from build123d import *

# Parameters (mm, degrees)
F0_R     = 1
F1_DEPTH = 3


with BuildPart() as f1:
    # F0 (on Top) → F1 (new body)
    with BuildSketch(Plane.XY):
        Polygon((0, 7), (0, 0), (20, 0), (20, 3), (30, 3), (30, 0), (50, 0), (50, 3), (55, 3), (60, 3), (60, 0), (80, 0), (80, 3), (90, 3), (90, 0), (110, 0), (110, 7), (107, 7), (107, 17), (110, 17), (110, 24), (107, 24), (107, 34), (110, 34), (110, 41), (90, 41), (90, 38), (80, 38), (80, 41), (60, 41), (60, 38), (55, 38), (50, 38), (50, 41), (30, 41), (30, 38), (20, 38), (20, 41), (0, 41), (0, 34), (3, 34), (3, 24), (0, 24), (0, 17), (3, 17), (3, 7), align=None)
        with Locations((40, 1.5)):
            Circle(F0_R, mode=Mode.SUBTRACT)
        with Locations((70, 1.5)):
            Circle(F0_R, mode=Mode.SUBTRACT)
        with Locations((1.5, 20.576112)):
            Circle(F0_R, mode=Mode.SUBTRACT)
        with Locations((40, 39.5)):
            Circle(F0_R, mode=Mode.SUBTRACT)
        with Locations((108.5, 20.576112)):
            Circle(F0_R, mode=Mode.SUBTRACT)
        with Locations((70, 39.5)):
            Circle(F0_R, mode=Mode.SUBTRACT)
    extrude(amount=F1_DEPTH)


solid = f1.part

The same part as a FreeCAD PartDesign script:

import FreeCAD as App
import Part
import Sketcher

V = App.Vector
Q = App.Units.Quantity

doc = App.newDocument("Part")
body = doc.addObject("PartDesign::Body", "Body")

sketch1 = body.newObject("Sketcher::SketchObject", "Sketch")
sketch1.AttachmentSupport = (doc.getObject("XY_Plane"), [""])
sketch1.MapMode = "FlatFace"
sketch1.addGeometry(Part.LineSegment(V(0, 7, 0), V(0, 0, 0)), False)
sketch1.addGeometry(Part.LineSegment(V(0, 0, 0), V(20, 0, 0)), False)
sketch1.addGeometry(Part.LineSegment(V(20, 0, 0), V(20, 3, 0)), False)
sketch1.addGeometry(Part.LineSegment(V(20, 3, 0), V(30, 3, 0)), False)
sketch1.addGeometry(Part.LineSegment(V(30, 3, 0), V(30, 0, 0)), False)
sketch1.addGeometry(Part.LineSegment(V(30, 0, 0), V(50, 0, 0)), False)
sketch1.addGeometry(Part.LineSegment(V(50, 0, 0), V(50, 3, 0)), False)
sketch1.addGeometry(Part.LineSegment(V(50, 3, 0), V(60, 3, 0)), False)
sketch1.addGeometry(Part.LineSegment(V(60, 3, 0), V(60, 0, 0)), False)
sketch1.addGeometry(Part.LineSegment(V(60, 0, 0), V(80, 0, 0)), False)
sketch1.addGeometry(Part.LineSegment(V(80, 0, 0), V(80, 3, 0)), False)
sketch1.addGeometry(Part.LineSegment(V(80, 3, 0), V(90, 3, 0)), False)
sketch1.addGeometry(Part.LineSegment(V(90, 3, 0), V(90, 0, 0)), False)
sketch1.addGeometry(Part.LineSegment(V(90, 0, 0), V(110, 0, 0)), False)
sketch1.addGeometry(Part.LineSegment(V(110, 0, 0), V(110, 7, 0)), False)
sketch1.addGeometry(Part.LineSegment(V(110, 7, 0), V(107, 7, 0)), False)
sketch1.addGeometry(Part.LineSegment(V(107, 7, 0), V(107, 17, 0)), False)
sketch1.addGeometry(Part.LineSegment(V(107, 17, 0), V(110, 17, 0)), False)
sketch1.addGeometry(Part.LineSegment(V(110, 17, 0), V(110, 24, 0)), False)
sketch1.addGeometry(Part.LineSegment(V(110, 24, 0), V(107, 24, 0)), False)
sketch1.addGeometry(Part.LineSegment(V(107, 24, 0), V(107, 34, 0)), False)
sketch1.addGeometry(Part.LineSegment(V(107, 34, 0), V(110, 34, 0)), False)
sketch1.addGeometry(Part.LineSegment(V(110, 34, 0), V(110, 41, 0)), False)
sketch1.addGeometry(Part.LineSegment(V(110, 41, 0), V(90, 41, 0)), False)
sketch1.addGeometry(Part.LineSegment(V(90, 41, 0), V(90, 38, 0)), False)
sketch1.addGeometry(Part.LineSegment(V(90, 38, 0), V(80, 38, 0)), False)
sketch1.addGeometry(Part.LineSegment(V(80, 38, 0), V(80, 41, 0)), False)
sketch1.addGeometry(Part.LineSegment(V(80, 41, 0), V(60, 41, 0)), False)
sketch1.addGeometry(Part.LineSegment(V(60, 41, 0), V(60, 38, 0)), False)
sketch1.addGeometry(Part.LineSegment(V(60, 38, 0), V(50, 38, 0)), False)
sketch1.addGeometry(Part.LineSegment(V(50, 38, 0), V(50, 41, 0)), False)
sketch1.addGeometry(Part.LineSegment(V(50, 41, 0), V(30, 41, 0)), False)
sketch1.addGeometry(Part.LineSegment(V(30, 41, 0), V(30, 38, 0)), False)
sketch1.addGeometry(Part.LineSegment(V(30, 38, 0), V(20, 38, 0)), False)
sketch1.addGeometry(Part.LineSegment(V(20, 38, 0), V(20, 41, 0)), False)
sketch1.addGeometry(Part.LineSegment(V(20, 41, 0), V(0, 41, 0)), False)
sketch1.addGeometry(Part.LineSegment(V(0, 41, 0), V(0, 34, 0)), False)
sketch1.addGeometry(Part.LineSegment(V(0, 34, 0), V(3, 34, 0)), False)
sketch1.addGeometry(Part.LineSegment(V(3, 34, 0), V(3, 24, 0)), False)
sketch1.addGeometry(Part.LineSegment(V(3, 24, 0), V(0, 24, 0)), False)
sketch1.addGeometry(Part.LineSegment(V(0, 24, 0), V(0, 17, 0)), False)
sketch1.addGeometry(Part.LineSegment(V(0, 17, 0), V(3, 17, 0)), False)
sketch1.addGeometry(Part.LineSegment(V(3, 17, 0), V(3, 7, 0)), False)
sketch1.addGeometry(Part.LineSegment(V(3, 7, 0), V(0, 7, 0)), False)
sketch1.addGeometry(Part.Circle(V(40, 1.5, 0), V(0, 0, 1), 1), False)
sketch1.addGeometry(Part.Circle(V(70, 1.5, 0), V(0, 0, 1), 1), False)
sketch1.addGeometry(Part.Circle(V(1.5, 20.6, 0), V(0, 0, 1), 1), False)
sketch1.addGeometry(Part.Circle(V(40, 39.5, 0), V(0, 0, 1), 1), False)
sketch1.addGeometry(Part.Circle(V(108.5, 20.6, 0), V(0, 0, 1), 1), False)
sketch1.addGeometry(Part.Circle(V(70, 39.5, 0), V(0, 0, 1), 1), False)
sketch1.addConstraint(Sketcher.Constraint("Coincident", 0, 2, 1, 1))
sketch1.addConstraint(Sketcher.Constraint("Coincident", 1, 2, 2, 1))
sketch1.addConstraint(Sketcher.Constraint("Coincident", 2, 2, 3, 1))
sketch1.addConstraint(Sketcher.Constraint("Coincident", 3, 2, 4, 1))
sketch1.addConstraint(Sketcher.Constraint("Coincident", 4, 2, 5, 1))
sketch1.addConstraint(Sketcher.Constraint("Coincident", 5, 2, 6, 1))
sketch1.addConstraint(Sketcher.Constraint("Coincident", 6, 2, 7, 1))
sketch1.addConstraint(Sketcher.Constraint("Coincident", 7, 2, 8, 1))
sketch1.addConstraint(Sketcher.Constraint("Coincident", 8, 2, 9, 1))
sketch1.addConstraint(Sketcher.Constraint("Coincident", 9, 2, 10, 1))
sketch1.addConstraint(Sketcher.Constraint("Coincident", 10, 2, 11, 1))
sketch1.addConstraint(Sketcher.Constraint("Coincident", 11, 2, 12, 1))
sketch1.addConstraint(Sketcher.Constraint("Coincident", 12, 2, 13, 1))
sketch1.addConstraint(Sketcher.Constraint("Coincident", 13, 2, 14, 1))
sketch1.addConstraint(Sketcher.Constraint("Coincident", 14, 2, 15, 1))
sketch1.addConstraint(Sketcher.Constraint("Coincident", 15, 2, 16, 1))
sketch1.addConstraint(Sketcher.Constraint("Coincident", 16, 2, 17, 1))
sketch1.addConstraint(Sketcher.Constraint("Coincident", 17, 2, 18, 1))
sketch1.addConstraint(Sketcher.Constraint("Coincident", 18, 2, 19, 1))
sketch1.addConstraint(Sketcher.Constraint("Coincident", 19, 2, 20, 1))
sketch1.addConstraint(Sketcher.Constraint("Coincident", 20, 2, 21, 1))
sketch1.addConstraint(Sketcher.Constraint("Coincident", 21, 2, 22, 1))
sketch1.addConstraint(Sketcher.Constraint("Coincident", 22, 2, 23, 1))
sketch1.addConstraint(Sketcher.Constraint("Coincident", 23, 2, 24, 1))
sketch1.addConstraint(Sketcher.Constraint("Coincident", 24, 2, 25, 1))
sketch1.addConstraint(Sketcher.Constraint("Coincident", 25, 2, 26, 1))
sketch1.addConstraint(Sketcher.Constraint("Coincident", 26, 2, 27, 1))
sketch1.addConstraint(Sketcher.Constraint("Coincident", 27, 2, 28, 1))
sketch1.addConstraint(Sketcher.Constraint("Coincident", 28, 2, 29, 1))
sketch1.addConstraint(Sketcher.Constraint("Coincident", 29, 2, 30, 1))
sketch1.addConstraint(Sketcher.Constraint("Coincident", 30, 2, 31, 1))
sketch1.addConstraint(Sketcher.Constraint("Coincident", 31, 2, 32, 1))
sketch1.addConstraint(Sketcher.Constraint("Coincident", 32, 2, 33, 1))
sketch1.addConstraint(Sketcher.Constraint("Coincident", 33, 2, 34, 1))
sketch1.addConstraint(Sketcher.Constraint("Coincident", 34, 2, 35, 1))
sketch1.addConstraint(Sketcher.Constraint("Coincident", 35, 2, 36, 1))
sketch1.addConstraint(Sketcher.Constraint("Coincident", 36, 2, 37, 1))
sketch1.addConstraint(Sketcher.Constraint("Coincident", 37, 2, 38, 1))
sketch1.addConstraint(Sketcher.Constraint("Coincident", 38, 2, 39, 1))
sketch1.addConstraint(Sketcher.Constraint("Coincident", 39, 2, 40, 1))
sketch1.addConstraint(Sketcher.Constraint("Coincident", 40, 2, 41, 1))
sketch1.addConstraint(Sketcher.Constraint("Coincident", 41, 2, 42, 1))
sketch1.addConstraint(Sketcher.Constraint("Coincident", 42, 2, 43, 1))
sketch1.addConstraint(Sketcher.Constraint("Coincident", 43, 2, 0, 1))
sketch1.addConstraint(Sketcher.Constraint("Vertical", 0))
sketch1.addConstraint(Sketcher.Constraint("Horizontal", 1))
sketch1.addConstraint(Sketcher.Constraint("Vertical", 2))
sketch1.addConstraint(Sketcher.Constraint("Horizontal", 3))
sketch1.addConstraint(Sketcher.Constraint("Vertical", 4))
sketch1.addConstraint(Sketcher.Constraint("Horizontal", 5))
sketch1.addConstraint(Sketcher.Constraint("Vertical", 6))
sketch1.addConstraint(Sketcher.Constraint("Horizontal", 7))
sketch1.addConstraint(Sketcher.Constraint("Vertical", 8))
sketch1.addConstraint(Sketcher.Constraint("Horizontal", 9))
sketch1.addConstraint(Sketcher.Constraint("Vertical", 10))
sketch1.addConstraint(Sketcher.Constraint("Horizontal", 11))
sketch1.addConstraint(Sketcher.Constraint("Vertical", 12))
sketch1.addConstraint(Sketcher.Constraint("Horizontal", 13))
sketch1.addConstraint(Sketcher.Constraint("Vertical", 14))
sketch1.addConstraint(Sketcher.Constraint("Horizontal", 15))
sketch1.addConstraint(Sketcher.Constraint("Vertical", 16))
sketch1.addConstraint(Sketcher.Constraint("Horizontal", 17))
sketch1.addConstraint(Sketcher.Constraint("Vertical", 18))
sketch1.addConstraint(Sketcher.Constraint("Horizontal", 19))
sketch1.addConstraint(Sketcher.Constraint("Vertical", 20))
sketch1.addConstraint(Sketcher.Constraint("Horizontal", 21))
sketch1.addConstraint(Sketcher.Constraint("Vertical", 22))
sketch1.addConstraint(Sketcher.Constraint("Horizontal", 23))
sketch1.addConstraint(Sketcher.Constraint("Vertical", 24))
sketch1.addConstraint(Sketcher.Constraint("Horizontal", 25))
sketch1.addConstraint(Sketcher.Constraint("Vertical", 26))
sketch1.addConstraint(Sketcher.Constraint("Horizontal", 27))
sketch1.addConstraint(Sketcher.Constraint("Vertical", 28))
sketch1.addConstraint(Sketcher.Constraint("Horizontal", 29))
sketch1.addConstraint(Sketcher.Constraint("Vertical", 30))
sketch1.addConstraint(Sketcher.Constraint("Horizontal", 31))
sketch1.addConstraint(Sketcher.Constraint("Vertical", 32))
sketch1.addConstraint(Sketcher.Constraint("Horizontal", 33))
sketch1.addConstraint(Sketcher.Constraint("Vertical", 34))
sketch1.addConstraint(Sketcher.Constraint("Horizontal", 35))
sketch1.addConstraint(Sketcher.Constraint("Vertical", 36))
sketch1.addConstraint(Sketcher.Constraint("Horizontal", 37))
sketch1.addConstraint(Sketcher.Constraint("Vertical", 38))
sketch1.addConstraint(Sketcher.Constraint("Horizontal", 39))
sketch1.addConstraint(Sketcher.Constraint("Vertical", 40))
sketch1.addConstraint(Sketcher.Constraint("Horizontal", 41))
sketch1.addConstraint(Sketcher.Constraint("Vertical", 42))
sketch1.addConstraint(Sketcher.Constraint("Horizontal", 43))
sketch1.addConstraint(Sketcher.Constraint("Coincident", 0, 2, -1, 1))
sketch1.addConstraint(Sketcher.Constraint("Equal", 44, 45))
sketch1.addConstraint(Sketcher.Constraint("Equal", 45, 46))
sketch1.addConstraint(Sketcher.Constraint("Equal", 46, 47))
sketch1.addConstraint(Sketcher.Constraint("Equal", 47, 48))
sketch1.addConstraint(Sketcher.Constraint("Equal", 48, 49))
sketch1.addConstraint(Sketcher.Constraint("PointOnObject", 4, 2, -1))
sketch1.addConstraint(Sketcher.Constraint("PointOnObject", 8, 2, -1))
sketch1.addConstraint(Sketcher.Constraint("PointOnObject", 12, 2, -1))
sketch1.addConstraint(Sketcher.Constraint("PointOnObject", 35, 2, -2))
sketch1.addConstraint(Sketcher.Constraint("PointOnObject", 39, 2, -2))
sketch1.addConstraint(Sketcher.Constraint("Horizontal", 44, 3, 45, 3))
sketch1.addConstraint(Sketcher.Constraint("Horizontal", 46, 3, 48, 3))
sketch1.addConstraint(Sketcher.Constraint("Horizontal", 47, 3, 49, 3))
sketch1.addConstraint(Sketcher.Constraint("Horizontal", 3, 2, 6, 2))
sketch1.addConstraint(Sketcher.Constraint("Horizontal", 7, 2, 10, 2))
sketch1.addConstraint(Sketcher.Constraint("Horizontal", 23, 2, 26, 2))
sketch1.addConstraint(Sketcher.Constraint("Horizontal", 25, 2, 28, 2))
sketch1.addConstraint(Sketcher.Constraint("Horizontal", 27, 2, 30, 2))
sketch1.addConstraint(Sketcher.Constraint("Horizontal", 29, 2, 32, 2))
sketch1.addConstraint(Sketcher.Constraint("Horizontal", 31, 2, 34, 2))
sketch1.addConstraint(Sketcher.Constraint("Horizontal", 21, 2, 36, 2))
sketch1.addConstraint(Sketcher.Constraint("Horizontal", 19, 2, 38, 2))
sketch1.addConstraint(Sketcher.Constraint("Horizontal", 17, 2, 40, 2))
sketch1.addConstraint(Sketcher.Constraint("Horizontal", 15, 2, 42, 2))
sketch1.addConstraint(Sketcher.Constraint("Vertical", 44, 3, 47, 3))
sketch1.addConstraint(Sketcher.Constraint("Vertical", 45, 3, 49, 3))
sketch1.addConstraint(Sketcher.Constraint("Vertical", 14, 2, 17, 2))
sketch1.addConstraint(Sketcher.Constraint("Vertical", 16, 2, 19, 2))
sketch1.addConstraint(Sketcher.Constraint("Vertical", 18, 2, 21, 2))
sketch1.addConstraint(Sketcher.Constraint("Vertical", 12, 2, 23, 2))
sketch1.addConstraint(Sketcher.Constraint("Vertical", 10, 2, 25, 2))
sketch1.addConstraint(Sketcher.Constraint("Vertical", 8, 2, 27, 2))
sketch1.addConstraint(Sketcher.Constraint("Vertical", 6, 2, 29, 2))
sketch1.addConstraint(Sketcher.Constraint("Vertical", 4, 2, 31, 2))
sketch1.addConstraint(Sketcher.Constraint("Vertical", 2, 2, 33, 2))
sketch1.addConstraint(Sketcher.Constraint("Vertical", 38, 2, 41, 2))
sketch1.addConstraint(Sketcher.Constraint("Equal", 1, 5))
sketch1.addConstraint(Sketcher.Constraint("Equal", 3, 7))
sketch1.addConstraint(Sketcher.Constraint("Equal", 5, 9))
sketch1.addConstraint(Sketcher.Constraint("Equal", 7, 11))
sketch1.addConstraint(Sketcher.Constraint("Equal", 9, 13))
sketch1.addConstraint(Sketcher.Constraint("Equal", 21, 37))
sketch1.addConstraint(Sketcher.Constraint("Equal", 43, 2))
sketch1.addConstraint(Sketcher.Constraint("Equal", 33, 16))
sketch1.addConstraint(Sketcher.Constraint("Equal", 14, 18))
sketch1.addConstraint(Sketcher.Constraint("Equal", 16, 20))
sketch1.addConstraint(Sketcher.Constraint("Equal", 18, 22))
sketch1.addConstraint(Sketcher.Constraint("Equal", 12, 24))
sketch1.addConstraint(Sketcher.Constraint("Diameter", 44, Q("2 mm")))
sketch1.addConstraint(Sketcher.Constraint("DistanceX", 1, 1, 1, 2, Q("20 mm")))
sketch1.addConstraint(Sketcher.Constraint("DistanceX", 3, 1, 3, 2, Q("10 mm")))
sketch1.addConstraint(Sketcher.Constraint("DistanceX", 15, 2, 15, 1, Q("3 mm")))
sketch1.addConstraint(Sketcher.Constraint("DistanceY", 0, 2, 0, 1, Q("7 mm")))
sketch1.addConstraint(Sketcher.Constraint("DistanceX", -1, 1, 44, 3, Q("40 mm")))
sketch1.addConstraint(Sketcher.Constraint("DistanceX", -1, 1, 45, 3, Q("70 mm")))
sketch1.addConstraint(Sketcher.Constraint("DistanceY", 44, 3, 47, 3, Q("38 mm")))
sketch1.addConstraint(Sketcher.Constraint("DistanceX", 46, 3, 48, 3, Q("107 mm")))
sketch1.addConstraint(Sketcher.Constraint("DistanceY", -1, 1, 44, 3, Q("1.5 mm")))
sketch1.addConstraint(Sketcher.Constraint("DistanceX", -1, 1, 46, 3, Q("1.5 mm")))
sketch1.addConstraint(Sketcher.Constraint("DistanceY", -1, 1, 46, 3, Q("20.576112 mm")))
pad1 = body.newObject("PartDesign::Pad", "Pad")
pad1.Profile = sketch1
pad1.Length = 3

doc.recompute()
